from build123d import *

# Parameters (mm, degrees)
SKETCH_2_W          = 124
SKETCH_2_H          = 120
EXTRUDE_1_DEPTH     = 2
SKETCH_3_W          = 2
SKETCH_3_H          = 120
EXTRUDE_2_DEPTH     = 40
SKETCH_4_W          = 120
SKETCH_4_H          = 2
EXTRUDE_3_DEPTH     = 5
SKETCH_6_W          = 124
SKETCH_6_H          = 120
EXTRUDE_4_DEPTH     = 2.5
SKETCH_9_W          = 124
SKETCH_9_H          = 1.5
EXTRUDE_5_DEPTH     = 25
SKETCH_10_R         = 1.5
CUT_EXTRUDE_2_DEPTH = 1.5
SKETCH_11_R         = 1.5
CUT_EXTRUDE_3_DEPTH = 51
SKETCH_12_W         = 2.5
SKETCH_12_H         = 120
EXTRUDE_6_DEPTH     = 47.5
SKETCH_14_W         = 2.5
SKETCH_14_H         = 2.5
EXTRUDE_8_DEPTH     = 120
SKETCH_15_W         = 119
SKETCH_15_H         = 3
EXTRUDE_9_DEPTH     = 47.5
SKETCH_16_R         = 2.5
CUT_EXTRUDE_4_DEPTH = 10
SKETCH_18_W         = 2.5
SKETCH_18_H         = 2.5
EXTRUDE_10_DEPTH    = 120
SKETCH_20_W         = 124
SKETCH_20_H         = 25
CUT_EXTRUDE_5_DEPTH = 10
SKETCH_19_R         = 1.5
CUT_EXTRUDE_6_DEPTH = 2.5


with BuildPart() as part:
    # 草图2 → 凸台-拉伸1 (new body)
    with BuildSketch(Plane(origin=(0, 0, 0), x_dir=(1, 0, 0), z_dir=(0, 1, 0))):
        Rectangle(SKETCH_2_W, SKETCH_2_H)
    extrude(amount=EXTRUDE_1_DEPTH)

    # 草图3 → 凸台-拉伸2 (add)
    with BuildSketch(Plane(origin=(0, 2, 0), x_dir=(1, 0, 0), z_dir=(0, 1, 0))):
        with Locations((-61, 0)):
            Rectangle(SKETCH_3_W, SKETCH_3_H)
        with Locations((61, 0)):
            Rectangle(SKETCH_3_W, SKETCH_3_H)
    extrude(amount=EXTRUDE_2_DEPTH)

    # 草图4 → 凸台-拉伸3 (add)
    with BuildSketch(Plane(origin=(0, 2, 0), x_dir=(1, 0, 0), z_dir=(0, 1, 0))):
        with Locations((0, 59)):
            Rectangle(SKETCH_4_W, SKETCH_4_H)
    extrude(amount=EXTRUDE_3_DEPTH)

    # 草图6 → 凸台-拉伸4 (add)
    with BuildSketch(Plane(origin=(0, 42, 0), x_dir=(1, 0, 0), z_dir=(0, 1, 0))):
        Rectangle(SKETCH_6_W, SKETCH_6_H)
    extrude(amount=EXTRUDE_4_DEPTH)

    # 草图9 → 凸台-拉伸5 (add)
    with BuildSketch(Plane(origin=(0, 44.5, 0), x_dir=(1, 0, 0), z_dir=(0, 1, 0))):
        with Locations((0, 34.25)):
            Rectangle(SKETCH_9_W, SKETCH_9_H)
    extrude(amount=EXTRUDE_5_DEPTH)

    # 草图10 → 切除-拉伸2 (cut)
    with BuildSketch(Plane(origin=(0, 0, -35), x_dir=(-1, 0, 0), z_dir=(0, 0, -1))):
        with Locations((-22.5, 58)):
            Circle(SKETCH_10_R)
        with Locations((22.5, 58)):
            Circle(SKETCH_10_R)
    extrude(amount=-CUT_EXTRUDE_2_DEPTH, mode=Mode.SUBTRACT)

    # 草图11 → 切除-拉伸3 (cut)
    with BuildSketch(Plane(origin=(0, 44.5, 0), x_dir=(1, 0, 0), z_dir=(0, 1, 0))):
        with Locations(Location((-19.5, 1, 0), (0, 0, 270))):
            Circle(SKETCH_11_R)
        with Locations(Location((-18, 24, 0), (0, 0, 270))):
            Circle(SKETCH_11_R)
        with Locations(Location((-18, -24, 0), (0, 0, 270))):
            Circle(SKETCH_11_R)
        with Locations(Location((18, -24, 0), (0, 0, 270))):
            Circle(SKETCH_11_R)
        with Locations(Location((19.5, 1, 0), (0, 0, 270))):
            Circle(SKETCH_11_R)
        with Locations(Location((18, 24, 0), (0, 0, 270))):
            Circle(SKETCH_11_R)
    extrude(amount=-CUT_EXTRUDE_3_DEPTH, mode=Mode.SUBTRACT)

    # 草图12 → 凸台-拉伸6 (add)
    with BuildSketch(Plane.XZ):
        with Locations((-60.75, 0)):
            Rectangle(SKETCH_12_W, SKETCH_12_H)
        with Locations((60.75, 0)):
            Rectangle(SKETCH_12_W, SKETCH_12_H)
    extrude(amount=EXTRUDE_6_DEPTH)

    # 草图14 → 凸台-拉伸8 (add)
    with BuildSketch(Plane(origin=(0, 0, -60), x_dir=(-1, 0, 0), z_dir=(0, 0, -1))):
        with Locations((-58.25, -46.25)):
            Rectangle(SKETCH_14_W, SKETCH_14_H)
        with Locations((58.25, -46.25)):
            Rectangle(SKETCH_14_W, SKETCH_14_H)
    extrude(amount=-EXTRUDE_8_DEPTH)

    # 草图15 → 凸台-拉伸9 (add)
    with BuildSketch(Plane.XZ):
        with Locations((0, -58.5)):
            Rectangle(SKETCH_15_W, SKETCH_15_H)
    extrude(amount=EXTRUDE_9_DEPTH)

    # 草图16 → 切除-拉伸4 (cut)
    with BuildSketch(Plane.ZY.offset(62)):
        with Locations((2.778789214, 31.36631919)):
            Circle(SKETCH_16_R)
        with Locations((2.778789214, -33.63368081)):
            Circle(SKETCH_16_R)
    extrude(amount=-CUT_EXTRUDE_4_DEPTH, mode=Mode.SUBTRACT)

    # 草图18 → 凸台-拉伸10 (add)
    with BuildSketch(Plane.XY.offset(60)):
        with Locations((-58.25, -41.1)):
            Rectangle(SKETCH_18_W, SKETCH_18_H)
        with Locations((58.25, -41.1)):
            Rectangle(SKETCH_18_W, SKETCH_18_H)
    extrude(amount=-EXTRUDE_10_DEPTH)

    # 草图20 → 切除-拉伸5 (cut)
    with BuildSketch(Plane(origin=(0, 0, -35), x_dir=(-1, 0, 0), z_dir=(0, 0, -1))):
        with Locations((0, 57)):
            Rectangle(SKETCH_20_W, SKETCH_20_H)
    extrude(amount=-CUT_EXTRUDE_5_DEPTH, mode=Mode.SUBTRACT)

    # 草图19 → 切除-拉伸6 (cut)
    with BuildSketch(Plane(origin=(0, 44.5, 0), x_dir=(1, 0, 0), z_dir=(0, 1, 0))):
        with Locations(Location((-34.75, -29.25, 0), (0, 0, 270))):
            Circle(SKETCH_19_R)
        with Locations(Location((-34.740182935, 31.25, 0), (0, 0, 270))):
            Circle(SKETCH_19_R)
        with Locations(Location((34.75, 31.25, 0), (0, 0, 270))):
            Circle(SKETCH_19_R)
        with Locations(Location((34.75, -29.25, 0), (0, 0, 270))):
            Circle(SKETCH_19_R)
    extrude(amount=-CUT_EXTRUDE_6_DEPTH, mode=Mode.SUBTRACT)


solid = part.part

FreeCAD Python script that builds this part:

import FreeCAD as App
import Part
import Sketcher

doc = App.newDocument("Part")
body = doc.addObject("PartDesign::Body", "Body")

# Sketch on XZ plane
sketch1 = doc.addObject("Sketcher::SketchObject", "Sketch")
body.addObject(sketch1)
sketch1.AttachmentSupport = (doc.XZ_Plane, [""])
sketch1.MapMode = "FlatFace"
sketch1.addGeometry(Part.LineSegment(App.Vector(-62, -60, 0), App.Vector(-62, 60, 0)), False)
sketch1.addGeometry(Part.LineSegment(App.Vector(-62, 60, 0), App.Vector(62, 60, 0)), False)
sketch1.addGeometry(Part.LineSegment(App.Vector(62, 60, 0), App.Vector(62, -60, 0)), False)
sketch1.addGeometry(Part.LineSegment(App.Vector(62, -60, 0), App.Vector(-62, -60, 0)), False)
sketch1.addConstraint(Sketcher.Constraint("Coincident", 0, 2, 1, 1))
sketch1.addConstraint(Sketcher.Constraint("Coincident", 1, 2, 2, 1))
sketch1.addConstraint(Sketcher.Constraint("Coincident", 2, 2, 3, 1))
sketch1.addConstraint(Sketcher.Constraint("Coincident", 3, 2, 0, 1))
sketch1.addConstraint(Sketcher.Constraint("Vertical", 0))
sketch1.addConstraint(Sketcher.Constraint("Horizontal", 1))
sketch1.addConstraint(Sketcher.Constraint("Vertical", 2))
sketch1.addConstraint(Sketcher.Constraint("Horizontal", 3))
sketch1.addConstraint(Sketcher.Constraint("Symmetric", 0, 2, 2, 2, -1, 1))
sketch1.addConstraint(Sketcher.Constraint("DistanceX", 1, 1, 1, 2, 124.0))
sketch1.addConstraint(Sketcher.Constraint("DistanceY", 0, 1, 0, 2, 120.0))
pad1 = doc.addObject("PartDesign::Pad", "Pad")
body.addObject(pad1)
pad1.Profile = sketch1
pad1.Length = 2
pad1.Reversed = True

# Sketch on XZ plane
sketch2 = doc.addObject("Sketcher::SketchObject", "Sketch001")
body.addObject(sketch2)
sketch2.AttachmentSupport = (doc.XZ_Plane, [""])
sketch2.MapMode = "FlatFace"
sketch2.AttachmentOffset = App.Placement(App.Vector(0, 0, -2), App.Rotation())
sketch2.addGeometry(Part.LineSegment(App.Vector(-62, -60, 0), App.Vector(-62, 60, 0)), False)
sketch2.addGeometry(Part.LineSegment(App.Vector(-62, 60, 0), App.Vector(-60, 60, 0)), False)
sketch2.addGeometry(Part.LineSegment(App.Vector(-60, 60, 0), App.Vector(-60, -60, 0)), False)
sketch2.addGeometry(Part.LineSegment(App.Vector(-60, -60, 0), App.Vector(-62, -60, 0)), False)
sketch2.addGeometry(Part.LineSegment(App.Vector(60, -60, 0), App.Vector(60, 60, 0)), False)
sketch2.addGeometry(Part.LineSegment(App.Vector(60, 60, 0), App.Vector(62, 60, 0)), False)
sketch2.addGeometry(Part.LineSegment(App.Vector(62, 60, 0), App.Vector(62, -60, 0)), False)
sketch2.addGeometry(Part.LineSegment(App.Vector(62, -60, 0), App.Vector(60, -60, 0)), False)
sketch2.addConstraint(Sketcher.Constraint("Coincident", 0, 2, 1, 1))
sketch2.addConstraint(Sketcher.Constraint("Coincident", 1, 2, 2, 1))
sketch2.addConstraint(Sketcher.Constraint("Coincident", 2, 2, 3, 1))
sketch2.addConstraint(Sketcher.Constraint("Coincident", 3, 2, 0, 1))
sketch2.addConstraint(Sketcher.Constraint("Coincident", 4, 2, 5, 1))
sketch2.addConstraint(Sketcher.Constraint("Coincident", 5, 2, 6, 1))
sketch2.addConstraint(Sketcher.Constraint("Coincident", 6, 2, 7, 1))
sketch2.addConstraint(Sketcher.Constraint("Coincident", 7, 2, 4, 1))
sketch2.addConstraint(Sketcher.Constraint("Vertical", 0))
sketch2.addConstraint(Sketcher.Constraint("Horizontal", 1))
sketch2.addConstraint(Sketcher.Constraint("Vertical", 2))
sketch2.addConstraint(Sketcher.Constraint("Horizontal", 3))
sketch2.addConstraint(Sketcher.Constraint("Vertical", 4))
sketch2.addConstraint(Sketcher.Constraint("Horizontal", 5))
sketch2.addConstraint(Sketcher.Constraint("Vertical", 6))
sketch2.addConstraint(Sketcher.Constraint("Horizontal", 7))
sketch2.addConstraint(Sketcher.Constraint("Symmetric", 2, 2, 4, 2, -1, 1))
sketch2.addConstraint(Sketcher.Constraint("Symmetric", 0, 2, 6, 2, -1, 1))
sketch2.addConstraint(Sketcher.Constraint("Horizontal", 1, 2, 4, 2))
sketch2.addConstraint(Sketcher.Constraint("DistanceX", 1, 1, 1, 2, 2.0))
sketch2.addConstraint(Sketcher.Constraint("DistanceY", 0, 1, 0, 2, 120.0))
sketch2.addConstraint(Sketcher.Constraint("DistanceX", 0, 2, -1, 1, 62.0))
pad2 = doc.addObject("PartDesign::Pad", "Pad001")
body.addObject(pad2)
pad2.Profile = sketch2
pad2.Length = 40
pad2.Reversed = True

# Sketch on XZ plane
sketch3 = doc.addObject("Sketcher::SketchObject", "Sketch002")
body.addObject(sketch3)
sketch3.AttachmentSupport = (doc.XZ_Plane, [""])
sketch3.MapMode = "FlatFace"
sketch3.AttachmentOffset = App.Placement(App.Vector(0, 0, -2), App.Rotation())
sketch3.addGeometry(Part.LineSegment(App.Vector(-60, -60, 0), App.Vector(-60, -58, 0)), False)
sketch3.addGeometry(Part.LineSegment(App.Vector(-60, -58, 0), App.Vector(60, -58, 0)), False)
sketch3.addGeometry(Part.LineSegment(App.Vector(60, -58, 0), App.Vector(60, -60, 0)), False)
sketch3.addGeometry(Part.LineSegment(App.Vector(60, -60, 0), App.Vector(-60, -60, 0)), False)
sketch3.addConstraint(Sketcher.Constraint("Coincident", 0, 2, 1, 1))
sketch3.addConstraint(Sketcher.Constraint("Coincident", 1, 2, 2, 1))
sketch3.addConstraint(Sketcher.Constraint("Coincident", 2, 2, 3, 1))
sketch3.addConstraint(Sketcher.Constraint("Coincident", 3, 2, 0, 1))
sketch3.addConstraint(Sketcher.Constraint("Vertical", 0))
sketch3.addConstraint(Sketcher.Constraint("Horizontal", 1))
sketch3.addConstraint(Sketcher.Constraint("Vertical", 2))
sketch3.addConstraint(Sketcher.Constraint("Horizontal", 3))
sketch3.addConstraint(Sketcher.Constraint("DistanceX", 1, 1, 1, 2, 120.0))
sketch3.addConstraint(Sketcher.Constraint("DistanceY", 0, 1, 0, 2, 2.0))
sketch3.addConstraint(Sketcher.Constraint("DistanceX", 0, 2, -1, 1, 60.0))
sketch3.addConstraint(Sketcher.Constraint("DistanceY", 0, 2, -1, 1, 58.0))
pad3 = doc.addObject("PartDesign::Pad", "Pad002")
body.addObject(pad3)
pad3.Profile = sketch3
pad3.Length = 5
pad3.Reversed = True

# Sketch on XZ plane
sketch4 = doc.addObject("Sketcher::SketchObject", "Sketch003")
body.addObject(sketch4)
sketch4.AttachmentSupport = (doc.XZ_Plane, [""])
sketch4.MapMode = "FlatFace"
sketch4.AttachmentOffset = App.Placement(App.Vector(0, 0, -42), App.Rotation())
sketch4.addGeometry(Part.LineSegment(App.Vector(-62, -60, 0), App.Vector(-62, 60, 0)), False)
sketch4.addGeometry(Part.LineSegment(App.Vector(-62, 60, 0), App.Vector(62, 60, 0)), False)
sketch4.addGeometry(Part.LineSegment(App.Vector(62, 60, 0), App.Vector(62, -60, 0)), False)
sketch4.addGeometry(Part.LineSegment(App.Vector(62, -60, 0), App.Vector(-62, -60, 0)), False)
sketch4.addConstraint(Sketcher.Constraint("Coincident", 0, 2, 1, 1))
sketch4.addConstraint(Sketcher.Constraint("Coincident", 1, 2, 2, 1))
sketch4.addConstraint(Sketcher.Constraint("Coincident", 2, 2, 3, 1))
sketch4.addConstraint(Sketcher.Constraint("Coincident", 3, 2, 0, 1))
sketch4.addConstraint(Sketcher.Constraint("Vertical", 0))
sketch4.addConstraint(Sketcher.Constraint("Horizontal", 1))
sketch4.addConstraint(Sketcher.Constraint("Vertical", 2))
sketch4.addConstraint(Sketcher.Constraint("Horizontal", 3))
sketch4.addConstraint(Sketcher.Constraint("Symmetric", 0, 2, 2, 2, -1, 1))
sketch4.addConstraint(Sketcher.Constraint("DistanceX", 1, 1, 1, 2, 124.0))
sketch4.addConstraint(Sketcher.Constraint("DistanceY", 0, 1, 0, 2, 120.0))
pad4 = doc.addObject("PartDesign::Pad", "Pad003")
body.addObject(pad4)
pad4.Profile = sketch4
pad4.Length = 2.5
pad4.Reversed = True

# Sketch on XZ plane
sketch5 = doc.addObject("Sketcher::SketchObject", "Sketch004")
body.addObject(sketch5)
sketch5.AttachmentSupport = (doc.XZ_Plane, [""])
sketch5.MapMode = "FlatFace"
sketch5.AttachmentOffset = App.Placement(App.Vector(0, 0, -44.5), App.Rotation())
sketch5.addGeometry(Part.LineSegment(App.Vector(-62, -35, 0), App.Vector(-62, -33.5, 0)), False)
sketch5.addGeometry(Part.LineSegment(App.Vector(-62, -33.5, 0), App.Vector(62, -33.5, 0)), False)
sketch5.addGeometry(Part.LineSegment(App.Vector(62, -33.5, 0), App.Vector(62, -35, 0)), False)
sketch5.addGeometry(Part.LineSegment(App.Vector(62, -35, 0), App.Vector(-62, -35, 0)), False)
sketch5.addConstraint(Sketcher.Constraint("Coincident", 0, 2, 1, 1))
sketch5.addConstraint(Sketcher.Constraint("Coincident", 1, 2, 2, 1))
sketch5.addConstraint(Sketcher.Constraint("Coincident", 2, 2, 3, 1))
sketch5.addConstraint(Sketcher.Constraint("Coincident", 3, 2, 0, 1))
sketch5.addConstraint(Sketcher.Constraint("Vertical", 0))
sketch5.addConstraint(Sketcher.Constraint("Horizontal", 1))
sketch5.addConstraint(Sketcher.Constraint("Vertical", 2))
sketch5.addConstraint(Sketcher.Constraint("Horizontal", 3))
sketch5.addConstraint(Sketcher.Constraint("DistanceX", 1, 1, 1, 2, 124.0))
sketch5.addConstraint(Sketcher.Constraint("DistanceY", 0, 1, 0, 2, 1.5))
sketch5.addConstraint(Sketcher.Constraint("DistanceX", 0, 2, -1, 1, 62.0))
sketch5.addConstraint(Sketcher.Constraint("DistanceY", 2, 2, -1, 1, 35.0))
pad5 = doc.addObject("PartDesign::Pad", "Pad004")
body.addObject(pad5)
pad5.Profile = sketch5
pad5.Length = 25
pad5.Reversed = True

# Sketch on XY plane
sketch6 = doc.addObject("Sketcher::SketchObject", "Sketch005")
body.addObject(sketch6)
sketch6.AttachmentSupport = (doc.XY_Plane, [""])
sketch6.MapMode = "FlatFace"
sketch6.AttachmentOffset = App.Placement(App.Vector(0, 0, -35), App.Rotation())
sketch6.addGeometry(Part.Circle(App.Vector(22.5, 58, 0), App.Vector(0, 0, 1), 1.5), False)
sketch6.addGeometry(Part.Circle(App.Vector(-22.5, 58, 0), App.Vector(0, 0, 1), 1.5), False)
sketch6.addConstraint(Sketcher.Constraint("Equal", 0, 1))
sketch6.addConstraint(Sketcher.Constraint("Symmetric", 0, 3, 1, 3, -2))
sketch6.addConstraint(Sketcher.Constraint("Diameter", 0, 3.0))
sketch6.addConstraint(Sketcher.Constraint("DistanceY", -1, 1, 0, 3, 58.0))
sketch6.addConstraint(Sketcher.Constraint("DistanceX", 1, 3, 0, 3, 45.0))
pocket1 = doc.addObject("PartDesign::Pocket", "Pocket")
body.addObject(pocket1)
pocket1.Profile = sketch6
pocket1.Length = 1.5
pocket1.Reversed = True

# Sketch on XZ plane
sketch7 = doc.addObject("Sketcher::SketchObject", "Sketch006")
body.addObject(sketch7)
sketch7.AttachmentSupport = (doc.XZ_Plane, [""])
sketch7.MapMode = "FlatFace"
sketch7.AttachmentOffset = App.Placement(App.Vector(0, 0, -44.5), App.Rotation())
sketch7.addGeometry(Part.Circle(App.Vector(-19.5, -1, 0), App.Vector(0, 0, 1), 1.5), False)
sketch7.addGeometry(Part.Circle(App.Vector(-18, -24, 0), App.Vector(0, 0, 1), 1.5), False)
sketch7.addGeometry(Part.Circle(App.Vector(-18, 24, 0), App.Vector(0, 0, 1), 1.5), False)
sketch7.addGeometry(Part.Circle(App.Vector(18, 24, 0), App.Vector(0, 0, 1), 1.5), False)
sketch7.addGeometry(Part.Circle(App.Vector(19.5, -1, 0), App.Vector(0, 0, 1), 1.5), False)
sketch7.addGeometry(Part.Circle(App.Vector(18, -24, 0), App.Vector(0, 0, 1), 1.5), False)
sketch7.addConstraint(Sketcher.Constraint("Equal", 0, 1))
sketch7.addConstraint(Sketcher.Constraint("Equal", 1, 2))
sketch7.addConstraint(Sketcher.Constraint("Equal", 2, 3))
sketch7.addConstraint(Sketcher.Constraint("Equal", 3, 4))
sketch7.addConstraint(Sketcher.Constraint("Equal", 4, 5))
sketch7.addConstraint(Sketcher.Constraint("Symmetric", 1, 3, 3, 3, -1, 1))
sketch7.addConstraint(Sketcher.Constraint("Symmetric", 2, 3, 5, 3, -1, 1))
sketch7.addConstraint(Sketcher.Constraint("Symmetric", 2, 3, 3, 3, -2))
sketch7.addConstraint(Sketcher.Constraint("Symmetric", 0, 3, 4, 3, -2))
sketch7.addConstraint(Sketcher.Constraint("Diameter", 0, 3.0))
sketch7.addConstraint(Sketcher.Constraint("DistanceY", 0, 3, -1, 1, 1.0))
sketch7.addConstraint(Sketcher.Constraint("DistanceX", 1, 3, -1, 1, 18.0))
sketch7.addConstraint(Sketcher.Constraint("DistanceY", 1, 3, -1, 1, 24.0))
sketch7.addConstraint(Sketcher.Constraint("DistanceX", 0, 3, 4, 3, 39.0))
pocket2 = doc.addObject("PartDesign::Pocket", "Pocket001")
body.addObject(pocket2)
pocket2.Profile = sketch7
pocket2.Length = 51
pocket2.Reversed = True

# Sketch on XZ plane
sketch8 = doc.addObject("Sketcher::SketchObject", "Sketch007")
body.addObject(sketch8)
sketch8.AttachmentSupport = (doc.XZ_Plane, [""])
sketch8.MapMode = "FlatFace"
sketch8.addGeometry(Part.LineSegment(App.Vector(-62, 60, 0), App.Vector(-62, -60, 0)), False)
sketch8.addGeometry(Part.LineSegment(App.Vector(-62, -60, 0), App.Vector(-59.5, -60, 0)), False)
sketch8.addGeometry(Part.LineSegment(App.Vector(-59.5, -60, 0), App.Vector(-59.5, 60, 0)), False)
sketch8.addGeometry(Part.LineSegment(App.Vector(-59.5, 60, 0), App.Vector(-62, 60, 0)), False)
sketch8.addGeometry(Part.LineSegment(App.Vector(59.5, 60, 0), App.Vector(59.5, -60, 0)), False)
sketch8.addGeometry(Part.LineSegment(App.Vector(59.5, -60, 0), App.Vector(62, -60, 0)), False)
sketch8.addGeometry(Part.LineSegment(App.Vector(62, -60, 0), App.Vector(62, 60, 0)), False)
sketch8.addGeometry(Part.LineSegment(App.Vector(62, 60, 0), App.Vector(59.5, 60, 0)), False)
sketch8.addConstraint(Sketcher.Constraint("Coincident", 0, 2, 1, 1))
sketch8.addConstraint(Sketcher.Constraint("Coincident", 1, 2, 2, 1))
sketch8.addConstraint(Sketcher.Constraint("Coincident", 2, 2, 3, 1))
sketch8.addConstraint(Sketcher.Constraint("Coincident", 3, 2, 0, 1))
sketch8.addConstraint(Sketcher.Constraint("Coincident", 4, 2, 5, 1))
sketch8.addConstraint(Sketcher.Constraint("Coincident", 5, 2, 6, 1))
sketch8.addConstraint(Sketcher.Constraint("Coincident", 6, 2, 7, 1))
sketch8.addConstraint(Sketcher.Constraint("Coincident", 7, 2, 4, 1))
sketch8.addConstraint(Sketcher.Constraint("Vertical", 0))
sketch8.addConstraint(Sketcher.Constraint("Horizontal", 1))
sketch8.addConstraint(Sketcher.Constraint("Vertical", 2))
sketch8.addConstraint(Sketcher.Constraint("Horizontal", 3))
sketch8.addConstraint(Sketcher.Constraint("Vertical", 4))
sketch8.addConstraint(Sketcher.Constraint("Horizontal", 5))
sketch8.addConstraint(Sketcher.Constraint("Vertical", 6))
sketch8.addConstraint(Sketcher.Constraint("Horizontal", 7))
sketch8.addConstraint(Sketcher.Constraint("Symmetric", 2, 2, 4, 2, -1, 1))
sketch8.addConstraint(Sketcher.Constraint("Symmetric", 0, 2, 6, 2, -1, 1))
sketch8.addConstraint(Sketcher.Constraint("Horizontal", 1, 2, 4, 2))
sketch8.addConstraint(Sketcher.Constraint("DistanceY", 0, 2, 0, 1, 120.0))
sketch8.addConstraint(Sketcher.Constraint("DistanceX", 1, 1, 1, 2, 2.5))
sketch8.addConstraint(Sketcher.Constraint("DistanceX", 0, 2, -1, 1, 62.0))
pad6 = doc.addObject("PartDesign::Pad", "Pad005")
body.addObject(pad6)
pad6.Profile = sketch8
pad6.Length = 47.5

# Sketch on XY plane
sketch9 = doc.addObject("Sketcher::SketchObject", "Sketch008")
body.addObject(sketch9)
sketch9.AttachmentSupport = (doc.XY_Plane, [""])
sketch9.MapMode = "FlatFace"
sketch9.AttachmentOffset = App.Placement(App.Vector(0, 0, -60), App.Rotation())
sketch9.addGeometry(Part.LineSegment(App.Vector(59.5, -45, 0), App.Vector(59.5, -47.5, 0)), False)
sketch9.addGeometry(Part.LineSegment(App.Vector(59.5, -47.5, 0), App.Vector(57, -47.5, 0)), False)
sketch9.addGeometry(Part.LineSegment(App.Vector(57, -47.5, 0), App.Vector(57, -45, 0)), False)
sketch9.addGeometry(Part.LineSegment(App.Vector(57, -45, 0), App.Vector(59.5, -45, 0)), False)
sketch9.addGeometry(Part.LineSegment(App.Vector(-57, -45, 0), App.Vector(-57, -47.5, 0)), False)
sketch9.addGeometry(Part.LineSegment(App.Vector(-57, -47.5, 0), App.Vector(-59.5, -47.5, 0)), False)
sketch9.addGeometry(Part.LineSegment(App.Vector(-59.5, -47.5, 0), App.Vector(-59.5, -45, 0)), False)
sketch9.addGeometry(Part.LineSegment(App.Vector(-59.5, -45, 0), App.Vector(-57, -45, 0)), False)
sketch9.addConstraint(Sketcher.Constraint("Coincident", 0, 2, 1, 1))
sketch9.addConstraint(Sketcher.Constraint("Coincident", 1, 2, 2, 1))
sketch9.addConstraint(Sketcher.Constraint("Coincident", 2, 2, 3, 1))
sketch9.addConstraint(Sketcher.Constraint("Coincident", 3, 2, 0, 1))
sketch9.addConstraint(Sketcher.Constraint("Coincident", 4, 2, 5, 1))
sketch9.addConstraint(Sketcher.Constraint("Coincident", 5, 2, 6, 1))
sketch9.addConstraint(Sketcher.Constraint("Coincident", 6, 2, 7, 1))
sketch9.addConstraint(Sketcher.Constraint("Coincident", 7, 2, 4, 1))
sketch9.addConstraint(Sketcher.Constraint("Vertical", 0))
sketch9.addConstraint(Sketcher.Constraint("Horizontal", 1))
sketch9.addConstraint(Sketcher.Constraint("Vertical", 2))
sketch9.addConstraint(Sketcher.Constraint("Horizontal", 3))
sketch9.addConstraint(Sketcher.Constraint("Vertical", 4))
sketch9.addConstraint(Sketcher.Constraint("Horizontal", 5))
sketch9.addConstraint(Sketcher.Constraint("Vertical", 6))
sketch9.addConstraint(Sketcher.Constraint("Horizontal", 7))
sketch9.addConstraint(Sketcher.Constraint("Symmetric", 1, 2, 4, 2, -2))
sketch9.addConstraint(Sketcher.Constraint("Symmetric", 3, 2, 6, 2, -2))
sketch9.addConstraint(Sketcher.Constraint("Equal", 7, 0))
sketch9.addConstraint(Sketcher.Constraint("DistanceX", 1, 2, 1, 1, 2.5))
sketch9.addConstraint(Sketcher.Constraint("DistanceX", -1, 1, 1, 2, 57.0))
sketch9.addConstraint(Sketcher.Constraint("DistanceY", 2, 2, -1, 1, 45.0))
pad7 = doc.addObject("PartDesign::Pad", "Pad006")
body.addObject(pad7)
pad7.Profile = sketch9
pad7.Length = 120

# Sketch on XZ plane
sketch10 = doc.addObject("Sketcher::SketchObject", "Sketch009")
body.addObject(sketch10)
sketch10.AttachmentSupport = (doc.XZ_Plane, [""])
sketch10.MapMode = "FlatFace"
sketch10.addGeometry(Part.LineSegment(App.Vector(-59.5, -57, 0), App.Vector(-59.5, -60, 0)), False)
sketch10.addGeometry(Part.LineSegment(App.Vector(-59.5, -60, 0), App.Vector(59.5, -60, 0)), False)
sketch10.addGeometry(Part.LineSegment(App.Vector(59.5, -60, 0), App.Vector(59.5, -57, 0)), False)
sketch10.addGeometry(Part.LineSegment(App.Vector(59.5, -57, 0), App.Vector(-59.5, -57, 0)), False)
sketch10.addConstraint(Sketcher.Constraint("Coincident", 0, 2, 1, 1))
sketch10.addConstraint(Sketcher.Constraint("Coincident", 1, 2, 2, 1))
sketch10.addConstraint(Sketcher.Constraint("Coincident", 2, 2, 3, 1))
sketch10.addConstraint(Sketcher.Constraint("Coincident", 3, 2, 0, 1))
sketch10.addConstraint(Sketcher.Constraint("Vertical", 0))
sketch10.addConstraint(Sketcher.Constraint("Horizontal", 1))
sketch10.addConstraint(Sketcher.Constraint("Vertical", 2))
sketch10.addConstraint(Sketcher.Constraint("Horizontal", 3))
sketch10.addConstraint(Sketcher.Constraint("DistanceX", 1, 1, 1, 2, 119.0))
sketch10.addConstraint(Sketcher.Constraint("DistanceY", 0, 2, 0, 1, 3.0))
sketch10.addConstraint(Sketcher.Constraint("DistanceY", 0, 2, -1, 1, 60.0))
sketch10.addConstraint(Sketcher.Constraint("DistanceX", 0, 2, -1, 1, 59.5))
pad8 = doc.addObject("PartDesign::Pad", "Pad007")
body.addObject(pad8)
pad8.Profile = sketch10
pad8.Length = 47.5

# Sketch on YZ plane
sketch11 = doc.addObject("Sketcher::SketchObject", "Sketch010")
body.addObject(sketch11)
sketch11.AttachmentSupport = (doc.YZ_Plane, [""])
sketch11.MapMode = "FlatFace"
sketch11.AttachmentOffset = App.Placement(App.Vector(0, 0, -62), App.Rotation())
sketch11.addGeometry(Part.Circle(App.Vector(31.366319, 2.778789, 0), App.Vector(0, 0, 1), 2.5), False)
sketch11.addGeometry(Part.Circle(App.Vector(-33.633681, 2.778789, 0), App.Vector(0, 0, 1), 2.5), False)
sketch11.addConstraint(Sketcher.Constraint("Equal", 0, 1))
sketch11.addConstraint(Sketcher.Constraint("Horizontal", 0, 3, 1, 3))
sketch11.addConstraint(Sketcher.Constraint("Diameter", 0, 5.0))
sketch11.addConstraint(Sketcher.Constraint("DistanceX", 1, 3, 0, 3, 65.0))
sketch11.addConstraint(Sketcher.Constraint("DistanceX", -1, 1, 0, 3, 31.366319))
sketch11.addConstraint(Sketcher.Constraint("DistanceY", -1, 1, 0, 3, 2.778789))
pocket3 = doc.addObject("PartDesign::Pocket", "Pocket002")
body.addObject(pocket3)
pocket3.Profile = sketch11
pocket3.Length = 10
pocket3.Reversed = True

# Sketch on XY plane
sketch12 = doc.addObject("Sketcher::SketchObject", "Sketch011")
body.addObject(sketch12)
sketch12.AttachmentSupport = (doc.XY_Plane, [""])
sketch12.MapMode = "FlatFace"
sketch12.AttachmentOffset = App.Placement(App.Vector(0, 0, 60), App.Rotation())
sketch12.addGeometry(Part.LineSegment(App.Vector(-59.5, -39.85, 0), App.Vector(-59.5, -42.35, 0)), False)
sketch12.addGeometry(Part.LineSegment(App.Vector(-59.5, -42.35, 0), App.Vector(-57, -42.35, 0)), False)
sketch12.addGeometry(Part.LineSegment(App.Vector(-57, -42.35, 0), App.Vector(-57, -39.85, 0)), False)
sketch12.addGeometry(Part.LineSegment(App.Vector(-57, -39.85, 0), App.Vector(-59.5, -39.85, 0)), False)
sketch12.addGeometry(Part.LineSegment(App.Vector(57, -39.85, 0), App.Vector(57, -42.35, 0)), False)
sketch12.addGeometry(Part.LineSegment(App.Vector(57, -42.35, 0), App.Vector(59.5, -42.35, 0)), False)
sketch12.addGeometry(Part.LineSegment(App.Vector(59.5, -42.35, 0), App.Vector(59.5, -39.85, 0)), False)
sketch12.addGeometry(Part.LineSegment(App.Vector(59.5, -39.85, 0), App.Vector(57, -39.85, 0)), False)
sketch12.addConstraint(Sketcher.Constraint("Coincident", 0, 2, 1, 1))
sketch12.addConstraint(Sketcher.Constraint("Coincident", 1, 2, 2, 1))
sketch12.addConstraint(Sketcher.Constraint("Coincident", 2, 2, 3, 1))
sketch12.addConstraint(Sketcher.Constraint("Coincident", 3, 2, 0, 1))
sketch12.addConstraint(Sketcher.Constraint("Coincident", 4, 2, 5, 1))
sketch12.addConstraint(Sketcher.Constraint("Coincident", 5, 2, 6, 1))
sketch12.addConstraint(Sketcher.Constraint("Coincident", 6, 2, 7, 1))
sketch12.addConstraint(Sketcher.Constraint("Coincident", 7, 2, 4, 1))
sketch12.addConstraint(Sketcher.Constraint("Vertical", 0))
sketch12.addConstraint(Sketcher.Constraint("Horizontal", 1))
sketch12.addConstraint(Sketcher.Constraint("Vertical", 2))
sketch12.addConstraint(Sketcher.Constraint("Horizontal", 3))
sketch12.addConstraint(Sketcher.Constraint("Vertical", 4))
sketch12.addConstraint(Sketcher.Constraint("Horizontal", 5))
sketch12.addConstraint(Sketcher.Constraint("Vertical", 6))
sketch12.addConstraint(Sketcher.Constraint("Horizontal", 7))
sketch12.addConstraint(Sketcher.Constraint("Symmetric", 1, 2, 4, 2, -2))
sketch12.addConstraint(Sketcher.Constraint("Symmetric", 3, 2, 6, 2, -2))
sketch12.addConstraint(Sketcher.Constraint("Equal", 7, 0))
sketch12.addConstraint(Sketcher.Constraint("DistanceX", 1, 1, 1, 2, 2.5))
sketch12.addConstraint(Sketcher.Constraint("DistanceX", 1, 2, -1, 1, 57.0))
sketch12.addConstraint(Sketcher.Constraint("DistanceY", 0, 2, -1, 1, 42.35))
pad9 = doc.addObject("PartDesign::Pad", "Pad008")
body.addObject(pad9)
pad9.Profile = sketch12
pad9.Length = 120
pad9.Reversed = True

# Sketch on XY plane
sketch13 = doc.addObject("Sketcher::SketchObject", "Sketch012")
body.addObject(sketch13)
sketch13.AttachmentSupport = (doc.XY_Plane, [""])
sketch13.MapMode = "FlatFace"
sketch13.AttachmentOffset = App.Placement(App.Vector(0, 0, -35), App.Rotation())
sketch13.addGeometry(Part.LineSegment(App.Vector(62, 69.5, 0), App.Vector(62, 44.5, 0)), False)
sketch13.addGeometry(Part.LineSegment(App.Vector(62, 44.5, 0), App.Vector(-62, 44.5, 0)), False)
sketch13.addGeometry(Part.LineSegment(App.Vector(-62, 44.5, 0), App.Vector(-62, 69.5, 0)), False)
sketch13.addGeometry(Part.LineSegment(App.Vector(-62, 69.5, 0), App.Vector(62, 69.5, 0)), False)
sketch13.addConstraint(Sketcher.Constraint("Coincident", 0, 2, 1, 1))
sketch13.addConstraint(Sketcher.Constraint("Coincident", 1, 2, 2, 1))
sketch13.addConstraint(Sketcher.Constraint("Coincident", 2, 2, 3, 1))
sketch13.addConstraint(Sketcher.Constraint("Coincident", 3, 2, 0, 1))
sketch13.addConstraint(Sketcher.Constraint("Vertical", 0))
sketch13.addConstraint(Sketcher.Constraint("Horizontal", 1))
sketch13.addConstraint(Sketcher.Constraint("Vertical", 2))
sketch13.addConstraint(Sketcher.Constraint("Horizontal", 3))
sketch13.addConstraint(Sketcher.Constraint("DistanceX", 1, 2, 1, 1, 124.0))
sketch13.addConstraint(Sketcher.Constraint("DistanceY", 0, 2, 0, 1, 25.0))
sketch13.addConstraint(Sketcher.Constraint("DistanceX", -1, 1, 0, 2, 62.0))
sketch13.addConstraint(Sketcher.Constraint("DistanceY", -1, 1, 0, 2, 44.5))
pocket4 = doc.addObject("PartDesign::Pocket", "Pocket003")
body.addObject(pocket4)
pocket4.Profile = sketch13
pocket4.Length = 10
pocket4.Reversed = True

# Sketch on XZ plane
sketch14 = doc.addObject("Sketcher::SketchObject", "Sketch013")
body.addObject(sketch14)
sketch14.AttachmentSupport = (doc.XZ_Plane, [""])
sketch14.MapMode = "FlatFace"
sketch14.AttachmentOffset = App.Placement(App.Vector(0, 0, -44.5), App.Rotation())
sketch14.addGeometry(Part.Circle(App.Vector(-34.75, 29.25, 0), App.Vector(0, 0, 1), 1.5), False)
sketch14.addGeometry(Part.Circle(App.Vector(-34.740183, -31.25, 0), App.Vector(0, 0, 1), 1.5), False)
sketch14.addGeometry(Part.Circle(App.Vector(34.75, -31.25, 0), App.Vector(0, 0, 1), 1.5), False)
sketch14.addGeometry(Part.Circle(App.Vector(34.75, 29.25, 0), App.Vector(0, 0, 1), 1.5), False)
sketch14.addConstraint(Sketcher.Constraint("Equal", 0, 1))
sketch14.addConstraint(Sketcher.Constraint("Equal", 1, 2))
sketch14.addConstraint(Sketcher.Constraint("Equal", 2, 3))
sketch14.addConstraint(Sketcher.Constraint("Symmetric", 0, 3, 3, 3, -2))
sketch14.addConstraint(Sketcher.Constraint("Horizontal", 1, 3, 2, 3))
sketch14.addConstraint(Sketcher.Constraint("Vertical", 2, 3, 3, 3))
sketch14.addConstraint(Sketcher.Constraint("Diameter", 0, 3.0))
sketch14.addConstraint(Sketcher.Constraint("DistanceY", 1, 3, 0, 3, 60.5))
sketch14.addConstraint(Sketcher.Constraint("DistanceX", 0, 3, 2, 3, 69.5))
sketch14.addConstraint(Sketcher.Constraint("DistanceY", -1, 1, 0, 3, 29.25))
sketch14.addConstraint(Sketcher.Constraint("DistanceX", 1, 3, -1, 1, 34.740183))
pocket5 = doc.addObject("PartDesign::Pocket", "Pocket004")
body.addObject(pocket5)
pocket5.Profile = sketch14
pocket5.Length = 2.5
pocket5.Reversed = True

doc.recompute()
